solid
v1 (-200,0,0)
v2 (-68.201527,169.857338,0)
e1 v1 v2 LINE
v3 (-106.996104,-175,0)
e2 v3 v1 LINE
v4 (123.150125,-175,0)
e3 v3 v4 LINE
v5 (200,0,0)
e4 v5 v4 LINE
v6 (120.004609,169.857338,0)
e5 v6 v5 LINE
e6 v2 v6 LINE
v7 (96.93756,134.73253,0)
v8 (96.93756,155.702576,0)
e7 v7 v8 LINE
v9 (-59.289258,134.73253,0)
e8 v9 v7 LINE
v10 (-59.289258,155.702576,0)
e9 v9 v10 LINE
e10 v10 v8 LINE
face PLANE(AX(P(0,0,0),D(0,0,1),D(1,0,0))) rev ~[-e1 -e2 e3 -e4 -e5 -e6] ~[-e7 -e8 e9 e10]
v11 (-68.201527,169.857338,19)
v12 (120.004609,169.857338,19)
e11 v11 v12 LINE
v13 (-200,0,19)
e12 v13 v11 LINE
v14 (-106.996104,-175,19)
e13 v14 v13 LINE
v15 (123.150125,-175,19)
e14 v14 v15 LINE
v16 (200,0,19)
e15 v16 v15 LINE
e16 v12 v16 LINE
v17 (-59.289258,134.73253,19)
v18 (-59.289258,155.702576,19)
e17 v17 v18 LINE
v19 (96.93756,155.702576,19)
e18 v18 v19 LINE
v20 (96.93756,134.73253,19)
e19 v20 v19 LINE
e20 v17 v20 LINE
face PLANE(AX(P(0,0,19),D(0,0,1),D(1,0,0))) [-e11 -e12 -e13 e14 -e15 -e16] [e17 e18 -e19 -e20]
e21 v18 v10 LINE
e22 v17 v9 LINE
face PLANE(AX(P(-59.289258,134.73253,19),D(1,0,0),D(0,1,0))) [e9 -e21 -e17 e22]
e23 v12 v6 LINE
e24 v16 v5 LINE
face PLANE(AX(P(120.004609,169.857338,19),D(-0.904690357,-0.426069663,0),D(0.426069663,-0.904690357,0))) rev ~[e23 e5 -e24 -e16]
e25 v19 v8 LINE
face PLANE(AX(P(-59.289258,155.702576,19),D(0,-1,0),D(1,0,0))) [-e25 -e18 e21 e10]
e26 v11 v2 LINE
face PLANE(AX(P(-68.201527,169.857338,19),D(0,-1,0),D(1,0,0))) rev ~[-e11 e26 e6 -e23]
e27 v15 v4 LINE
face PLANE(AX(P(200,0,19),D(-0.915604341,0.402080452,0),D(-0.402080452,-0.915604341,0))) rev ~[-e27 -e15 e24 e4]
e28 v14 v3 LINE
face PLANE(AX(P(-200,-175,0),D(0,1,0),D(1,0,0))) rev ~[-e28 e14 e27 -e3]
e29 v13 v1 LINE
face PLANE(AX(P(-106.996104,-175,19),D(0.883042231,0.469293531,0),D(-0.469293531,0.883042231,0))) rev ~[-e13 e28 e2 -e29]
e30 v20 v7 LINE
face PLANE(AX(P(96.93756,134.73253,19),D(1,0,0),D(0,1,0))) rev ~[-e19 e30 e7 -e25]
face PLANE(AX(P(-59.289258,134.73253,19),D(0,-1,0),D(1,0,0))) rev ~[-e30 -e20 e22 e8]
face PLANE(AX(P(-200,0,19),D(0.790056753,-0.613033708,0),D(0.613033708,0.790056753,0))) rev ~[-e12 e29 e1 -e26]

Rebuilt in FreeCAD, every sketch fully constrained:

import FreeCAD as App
import Part
import Sketcher

doc = App.newDocument("Part")
body = doc.addObject("PartDesign::Body", "Body")

sketch1 = body.newObject("Sketcher::SketchObject", "Sketch")
sketch1.AttachmentSupport = (doc.getObject("XY_Plane"), [""])
sketch1.MapMode = "FlatFace"
sketch1.addGeometry([
    Part.LineSegment(App.Vector(-200, 175, 0), App.Vector(-200, -175, 0)),
    Part.LineSegment(App.Vector(-200, -175, 0), App.Vector(200, -175, 0)),
    Part.LineSegment(App.Vector(200, -175, 0), App.Vector(200, 175, 0)),
    Part.LineSegment(App.Vector(200, 175, 0), App.Vector(-200, 175, 0)),
], False)
sketch1.addConstraint([
    Sketcher.Constraint("Coincident", 0, 2, 1, 1),
    Sketcher.Constraint("Coincident", 1, 2, 2, 1),
    Sketcher.Constraint("Coincident", 2, 2, 3, 1),
    Sketcher.Constraint("Coincident", 3, 2, 0, 1),
    Sketcher.Constraint("Vertical", 0),
    Sketcher.Constraint("Horizontal", 1),
    Sketcher.Constraint("Vertical", 2),
    Sketcher.Constraint("Horizontal", 3),
    Sketcher.Constraint("Symmetric", 0, 2, 2, 2, -1, 1),
    Sketcher.Constraint("DistanceX", 1, 1, 1, 2, 400.0),
    Sketcher.Constraint("DistanceY", 0, 2, 0, 1, 350.0),
])
pad1 = body.newObject("PartDesign::Pad", "Pad")
pad1.Profile = sketch1
pad1.Length = 19

sketch2 = body.newObject("Sketcher::SketchObject", "Sketch001")
sketch2.AttachmentSupport = (doc.getObject("XY_Plane"), [""])
sketch2.MapMode = "FlatFace"
sketch2.AttachmentOffset = App.Placement(App.Vector(0, 0, 19), App.Rotation())
sketch2.addGeometry([
    Part.LineSegment(App.Vector(-59, 156, 0), App.Vector(-59, 135, 0)),
    Part.LineSegment(App.Vector(-59, 135, 0), App.Vector(97, 135, 0)),
    Part.LineSegment(App.Vector(97, 135, 0), App.Vector(97, 156, 0)),
    Part.LineSegment(App.Vector(97, 156, 0), App.Vector(-59, 156, 0)),
    Part.LineSegment(App.Vector(-200, 175, 0), App.Vector(-200, 0, 0)),
    Part.LineSegment(App.Vector(-200, 0, 0), App.Vector(-68, 170, 0)),
    Part.LineSegment(App.Vector(-68, 170, 0), App.Vector(120, 170, 0)),
    Part.LineSegment(App.Vector(120, 170, 0), App.Vector(200, 0, 0)),
    Part.LineSegment(App.Vector(200, 0, 0), App.Vector(200, 175, 0)),
    Part.LineSegment(App.Vector(200, 175, 0), App.Vector(-200, 175, 0)),
    Part.LineSegment(App.Vector(-107, -175, 0), App.Vector(-200, 0, 0)),
    Part.LineSegment(App.Vector(-200, 0, 0), App.Vector(-200, -175, 0)),
    Part.LineSegment(App.Vector(-200, -175, 0), App.Vector(-107, -175, 0)),
    Part.LineSegment(App.Vector(200, 0, 0), App.Vector(123, -175, 0)),
    Part.LineSegment(App.Vector(123, -175, 0), App.Vector(200, -175, 0)),
    Part.LineSegment(App.Vector(200, -175, 0), App.Vector(200, 0, 0)),
], False)
sketch2.addConstraint([
    Sketcher.Constraint("Coincident", 0, 2, 1, 1),
    Sketcher.Constraint("Coincident", 1, 2, 2, 1),
    Sketcher.Constraint("Coincident", 2, 2, 3, 1),
    Sketcher.Constraint("Coincident", 3, 2, 0, 1),
    Sketcher.Constraint("Coincident", 4, 2, 5, 1),
    Sketcher.Constraint("Coincident", 5, 2, 6, 1),
    Sketcher.Constraint("Coincident", 6, 2, 7, 1),
    Sketcher.Constraint("Coincident", 7, 2, 8, 1),
    Sketcher.Constraint("Coincident", 8, 2, 9, 1),
    Sketcher.Constraint("Coincident", 9, 2, 4, 1),
    Sketcher.Constraint("Coincident", 10, 2, 11, 1),
    Sketcher.Constraint("Coincident", 11, 2, 12, 1),
    Sketcher.Constraint("Coincident", 12, 2, 10, 1),
    Sketcher.Constraint("Coincident", 13, 2, 14, 1),
    Sketcher.Constraint("Coincident", 14, 2, 15, 1),
    Sketcher.Constraint("Coincident", 15, 2, 13, 1),
    Sketcher.Constraint("Vertical", 0),
    Sketcher.Constraint("Horizontal", 1),
    Sketcher.Constraint("Vertical", 2),
    Sketcher.Constraint("Horizontal", 3),
    Sketcher.Constraint("Vertical", 4),
    Sketcher.Constraint("Horizontal", 6),
    Sketcher.Constraint("Vertical", 8),
    Sketcher.Constraint("Horizontal", 9),
    Sketcher.Constraint("Vertical", 11),
    Sketcher.Constraint("Horizontal", 12),
    Sketcher.Constraint("Horizontal", 14),
    Sketcher.Constraint("Vertical", 15),
    Sketcher.Constraint("Coincident", 10, 2, 4, 2),
    Sketcher.Constraint("Coincident", 15, 2, 7, 2),
    Sketcher.Constraint("Symmetric", 4, 2, 7, 2, -1, 1),
    Sketcher.Constraint("PointOnObject", 4, 2, -1),
    Sketcher.Constraint("Horizontal", 12, 2, 13, 2),
    Sketcher.Constraint("Equal", 8, 11),
    Sketcher.Constraint("DistanceX", 9, 2, 9, 1, 400.0),
    Sketcher.Constraint("DistanceY", 4, 2, 4, 1, 175.0),
    Sketcher.Constraint("DistanceX", 1, 1, 1, 2, 156.226818),
    Sketcher.Constraint("DistanceX", 6, 1, 6, 2, 188.206136),
    Sketcher.Constraint("DistanceX", 12, 1, 12, 2, 93.003896),
    Sketcher.Constraint("DistanceX", 14, 1, 14, 2, 76.849875),
    Sketcher.Constraint("DistanceY", 0, 2, 0, 1, 20.970046),
    Sketcher.Constraint("DistanceY", -1, 1, 0, 2, 134.73253),
    Sketcher.Constraint("DistanceX", -1, 1, 1, 2, 96.93756),
    Sketcher.Constraint("DistanceY", -1, 1, 5, 2, 169.857338),
    Sketcher.Constraint("DistanceX", -1, 1, 6, 2, 120.004609),
])
pocket1 = body.newObject("PartDesign::Pocket", "Pocket")
pocket1.Profile = sketch2
pocket1.Type = "ThroughAll"

doc.recompute()
